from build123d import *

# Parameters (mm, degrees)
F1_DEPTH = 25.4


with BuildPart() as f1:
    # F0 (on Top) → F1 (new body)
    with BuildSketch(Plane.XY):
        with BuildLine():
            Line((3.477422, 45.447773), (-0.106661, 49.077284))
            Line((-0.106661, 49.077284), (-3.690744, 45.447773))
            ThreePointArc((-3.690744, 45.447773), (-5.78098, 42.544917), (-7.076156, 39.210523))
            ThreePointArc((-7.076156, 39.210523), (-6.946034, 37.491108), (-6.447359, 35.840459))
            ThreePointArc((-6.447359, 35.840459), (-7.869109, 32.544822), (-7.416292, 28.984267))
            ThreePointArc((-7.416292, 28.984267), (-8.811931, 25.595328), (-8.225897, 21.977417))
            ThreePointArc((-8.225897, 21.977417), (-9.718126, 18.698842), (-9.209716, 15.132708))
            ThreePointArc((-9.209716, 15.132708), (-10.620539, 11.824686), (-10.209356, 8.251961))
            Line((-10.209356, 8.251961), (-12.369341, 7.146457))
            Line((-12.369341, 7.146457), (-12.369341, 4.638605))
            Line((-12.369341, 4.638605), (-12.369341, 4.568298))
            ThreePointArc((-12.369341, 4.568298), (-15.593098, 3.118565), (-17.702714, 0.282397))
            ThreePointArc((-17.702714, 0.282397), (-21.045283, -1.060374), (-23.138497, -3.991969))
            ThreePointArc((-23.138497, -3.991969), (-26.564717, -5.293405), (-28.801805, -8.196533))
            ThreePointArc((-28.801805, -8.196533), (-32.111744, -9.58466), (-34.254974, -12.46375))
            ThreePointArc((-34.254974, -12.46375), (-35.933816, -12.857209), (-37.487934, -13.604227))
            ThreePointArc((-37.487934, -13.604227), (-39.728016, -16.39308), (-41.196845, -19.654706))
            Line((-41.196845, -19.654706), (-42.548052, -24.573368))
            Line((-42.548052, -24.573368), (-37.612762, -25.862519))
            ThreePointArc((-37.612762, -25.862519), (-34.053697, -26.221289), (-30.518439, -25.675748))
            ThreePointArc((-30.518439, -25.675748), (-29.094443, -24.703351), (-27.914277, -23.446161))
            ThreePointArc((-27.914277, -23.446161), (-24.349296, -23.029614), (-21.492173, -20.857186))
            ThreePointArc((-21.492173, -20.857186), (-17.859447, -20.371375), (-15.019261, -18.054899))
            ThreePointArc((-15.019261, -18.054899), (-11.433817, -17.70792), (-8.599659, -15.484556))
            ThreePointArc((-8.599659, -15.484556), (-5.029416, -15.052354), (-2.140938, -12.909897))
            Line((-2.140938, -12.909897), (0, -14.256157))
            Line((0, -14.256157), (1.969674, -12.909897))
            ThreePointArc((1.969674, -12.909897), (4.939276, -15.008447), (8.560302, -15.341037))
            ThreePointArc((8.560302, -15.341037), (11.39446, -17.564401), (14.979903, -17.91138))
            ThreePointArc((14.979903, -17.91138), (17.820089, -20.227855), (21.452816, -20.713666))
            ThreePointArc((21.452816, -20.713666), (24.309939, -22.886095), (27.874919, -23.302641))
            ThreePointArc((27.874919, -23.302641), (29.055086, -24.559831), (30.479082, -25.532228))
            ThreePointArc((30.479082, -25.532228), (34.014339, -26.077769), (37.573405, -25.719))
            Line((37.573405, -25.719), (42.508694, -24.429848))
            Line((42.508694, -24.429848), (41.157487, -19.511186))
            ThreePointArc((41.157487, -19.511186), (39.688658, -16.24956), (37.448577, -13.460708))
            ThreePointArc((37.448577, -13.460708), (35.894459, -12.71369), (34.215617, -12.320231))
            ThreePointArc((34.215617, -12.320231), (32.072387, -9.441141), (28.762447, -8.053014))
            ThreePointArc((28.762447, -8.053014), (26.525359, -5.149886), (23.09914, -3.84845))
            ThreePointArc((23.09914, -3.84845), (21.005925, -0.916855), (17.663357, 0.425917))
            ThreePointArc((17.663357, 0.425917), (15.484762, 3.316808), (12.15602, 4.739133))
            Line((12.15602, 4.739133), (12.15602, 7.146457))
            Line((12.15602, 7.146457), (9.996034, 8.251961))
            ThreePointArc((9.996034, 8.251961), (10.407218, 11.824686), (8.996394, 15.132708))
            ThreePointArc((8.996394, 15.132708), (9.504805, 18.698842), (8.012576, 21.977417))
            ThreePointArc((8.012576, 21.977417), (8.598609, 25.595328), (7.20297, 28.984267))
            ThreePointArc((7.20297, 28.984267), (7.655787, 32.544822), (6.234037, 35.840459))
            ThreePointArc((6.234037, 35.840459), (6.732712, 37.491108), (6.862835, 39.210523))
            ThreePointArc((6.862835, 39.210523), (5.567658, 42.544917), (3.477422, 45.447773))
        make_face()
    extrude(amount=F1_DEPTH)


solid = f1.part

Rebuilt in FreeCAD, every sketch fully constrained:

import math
import FreeCAD as App
import Part
import Sketcher
from FreeCAD import Vector

doc = App.newDocument("Part")
params = doc.addObject("Spreadsheet::Sheet", "Params")
for row, (alias, value) in enumerate([
    ("pad1_length", "1 in"),
], start=1):
    params.set(f"A{row}", alias)
    params.set(f"B{row}", "=" + value)
    params.setAlias(f"B{row}", alias)

body = doc.addObject("PartDesign::Body", "Body")

sketch1 = doc.addObject("Sketcher::SketchObject", "Sketch")
body.addObject(sketch1)
sketch1.AttachmentSupport = (doc.XY_Plane, [""])
sketch1.MapMode = "FlatFace"
sketch1.addGeometry([
    Part.LineSegment(Vector(3.477422, 45.447773, 0), Vector(-0.106661, 49.077284, 0)),
    Part.LineSegment(Vector(-0.106661, 49.077284, 0), Vector(-3.690744, 45.447773, 0)),
    Part.ArcOfCircle(Part.Circle(Vector(6.650595, 35.797391, 0), Vector(0, 0, 1), 14.144722), math.radians(136.979478), math.radians(166.036676)),
    Part.ArcOfCircle(Part.Circle(Vector(0.850105, 38.945736, 0), Vector(0, 0, 1), 7.930682), math.radians(178.086671), math.radians(203.051122)),
    Part.ArcOfCircle(Part.Circle(Vector(-1.13137, 31.592629, 0), Vector(0, 0, 1), 6.804689), math.radians(141.372811), math.radians(202.539381)),
    Part.ArcOfCircle(Part.Circle(Vector(-2.122763, 24.822429, 0), Vector(0, 0, 1), 6.733672), math.radians(141.825136), math.radians(204.992862)),
    Part.ArcOfCircle(Part.Circle(Vector(-3.363581, 17.785477, 0), Vector(0, 0, 1), 6.41985), math.radians(139.234446), math.radians(204.406864)),
    Part.ArcOfCircle(Part.Circle(Vector(-3.668808, 10.814733, 0), Vector(0, 0, 1), 7.024711), math.radians(142.071066), math.radians(201.396654)),
    Part.LineSegment(Vector(-10.209356, 8.251961, 0), Vector(-12.369341, 7.146457, 0)),
    Part.LineSegment(Vector(-12.369341, 7.146457, 0), Vector(-12.369341, 4.568298, 0)),
    Part.ArcOfCircle(Part.Circle(Vector(-11.192786, -2.35718, 0), Vector(0, 0, 1), 7.024708), math.radians(99.641801), math.radians(157.928949)),
    Part.ArcOfCircle(Part.Circle(Vector(-17.077014, -6.106887, 0), Vector(0, 0, 1), 6.419848), math.radians(95.593116), math.radians(160.765557)),
    Part.ArcOfCircle(Part.Circle(Vector(-22.550781, -10.699948, 0), Vector(0, 0, 1), 6.733676), math.radians(95.007157), math.radians(158.174848)),
    Part.ArcOfCircle(Part.Circle(Vector(-27.91825, -14.943617, 0), Vector(0, 0, 1), 6.80469), math.radians(97.460635), math.radians(158.627189)),
    Part.ArcOfCircle(Part.Circle(Vector(-33.295492, -20.336179, 0), Vector(0, 0, 1), 7.930684), math.radians(96.948864), math.radians(121.913311)),
    Part.ArcOfCircle(Part.Circle(Vector(-27.668696, -23.785378, 0), Vector(0, 0, 1), 14.144726), math.radians(133.96333), math.radians(163.020525)),
    Part.LineSegment(Vector(-41.196845, -19.654706, 0), Vector(-42.548052, -24.573368, 0)),
    Part.LineSegment(Vector(-42.548052, -24.573368, 0), Vector(-37.612762, -25.862519, 0)),
    Part.ArcOfCircle(Part.Circle(Vector(-34.425953, -12.081464, 0), Vector(0, 0, 1), 14.144725), math.radians(-103.020529), math.radians(-73.963336)),
    Part.ArcOfCircle(Part.Circle(Vector(-34.252259, -18.679013, 0), Vector(0, 0, 1), 7.930682), math.radians(-61.913314), math.radians(-36.94886)),
    Part.ArcOfCircle(Part.Circle(Vector(-26.893543, -16.718462, 0), Vector(0, 0, 1), 6.804692), math.radians(-98.627184), math.radians(-37.460637)),
    Part.ArcOfCircle(Part.Circle(Vector(-20.534682, -14.191936, 0), Vector(0, 0, 1), 6.733673), math.radians(-98.174852), math.radians(-35.007139)),
    Part.ArcOfCircle(Part.Circle(Vector(-13.820092, -11.748042, 0), Vector(0, 0, 1), 6.419849), math.radians(-100.765564), math.radians(-35.593118)),
    Part.ArcOfCircle(Part.Circle(Vector(-7.630635, -8.527005, 0), Vector(0, 0, 1), 7.024708), math.radians(-97.928952), math.radians(-38.603338)),
    Part.LineSegment(Vector(-2.140938, -12.909897, 0), Vector(0, -14.256157, 0)),
    Part.LineSegment(Vector(0, -14.256157, 0), Vector(1.969674, -12.909897, 0)),
    Part.ArcOfCircle(Part.Circle(Vector(7.370408, -8.41784, 0), Vector(0, 0, 1), 7.024707), math.radians(-140.24803), math.radians(-80.247822)),
    Part.ArcOfCircle(Part.Circle(Vector(13.780734, -11.604523, 0), Vector(0, 0, 1), 6.419848), math.radians(-144.406884), math.radians(-79.234441)),
    Part.ArcOfCircle(Part.Circle(Vector(20.495324, -14.048413, 0), Vector(0, 0, 1), 6.733675), math.radians(-144.99284), math.radians(-81.825147)),
    Part.ArcOfCircle(Part.Circle(Vector(26.854183, -16.574948, 0), Vector(0, 0, 1), 6.804686), math.radians(-142.539393), math.radians(-81.372793)),
    Part.ArcOfCircle(Part.Circle(Vector(34.212911, -18.535479, 0), Vector(0, 0, 1), 7.930699), math.radians(-143.051105), math.radians(-118.086699)),
    Part.ArcOfCircle(Part.Circle(Vector(34.386599, -11.937929, 0), Vector(0, 0, 1), 14.144739), math.radians(-106.036657), math.radians(-76.979494)),
    Part.LineSegment(Vector(37.573405, -25.719, 0), Vector(42.508694, -24.429848, 0)),
    Part.LineSegment(Vector(42.508694, -24.429848, 0), Vector(41.157487, -19.511186, 0)),
    Part.ArcOfCircle(Part.Circle(Vector(27.629338, -23.641858, 0), Vector(0, 0, 1), 14.144725), math.radians(16.979475), math.radians(46.036665)),
    Part.ArcOfCircle(Part.Circle(Vector(33.256135, -20.19266, 0), Vector(0, 0, 1), 7.930684), math.radians(58.086689), math.radians(83.051136)),
    Part.ArcOfCircle(Part.Circle(Vector(27.878893, -14.800098, 0), Vector(0, 0, 1), 6.80469), math.radians(21.37281), math.radians(82.539377)),
    Part.ArcOfCircle(Part.Circle(Vector(22.511422, -10.556429, 0), Vector(0, 0, 1), 6.733676), math.radians(21.825153), math.radians(84.992833)),
    Part.ArcOfCircle(Part.Circle(Vector(17.037652, -5.963373, 0), Vector(0, 0, 1), 6.419855), math.radians(19.23447), math.radians(84.406843)),
    Part.ArcOfCircle(Part.Circle(Vector(11.153429, -2.213661, 0), Vector(0, 0, 1), 7.024709), math.radians(22.071062), math.radians(81.794525)),
    Part.LineSegment(Vector(12.15602, 4.739133, 0), Vector(12.15602, 7.146457, 0)),
    Part.LineSegment(Vector(12.15602, 7.146457, 0), Vector(9.996034, 8.251961, 0)),
    Part.ArcOfCircle(Part.Circle(Vector(3.455493, 10.814734, 0), Vector(0, 0, 1), 7.024705), math.radians(-21.396684), math.radians(37.928965)),
    Part.ArcOfCircle(Part.Circle(Vector(3.150263, 17.785478, 0), Vector(0, 0, 1), 6.419847), math.radians(-24.406888), math.radians(40.765561)),
    Part.ArcOfCircle(Part.Circle(Vector(1.909438, 24.822428, 0), Vector(0, 0, 1), 6.733675), math.radians(-24.992838), math.radians(38.174857)),
    Part.ArcOfCircle(Part.Circle(Vector(0.918048, 31.592629, 0), Vector(0, 0, 1), 6.804689), math.radians(-22.539381), math.radians(38.627189)),
    Part.ArcOfCircle(Part.Circle(Vector(-1.063447, 38.945742, 0), Vector(0, 0, 1), 7.930703), math.radians(-23.051106), math.radians(1.913279)),
    Part.ArcOfCircle(Part.Circle(Vector(-6.863929, 35.797382, 0), Vector(0, 0, 1), 14.144737), math.radians(13.963346), math.radians(43.020514)),
], False)
sketch1.addConstraint([
    Sketcher.Constraint("Coincident", 0, 2, 1, 1),
    Sketcher.Constraint("Coincident", 1, 2, 2, 1),
    Sketcher.Constraint("Coincident", 2, 2, 3, 1),
    Sketcher.Constraint("Coincident", 3, 2, 4, 1),
    Sketcher.Constraint("Coincident", 4, 2, 5, 1),
    Sketcher.Constraint("Coincident", 5, 2, 6, 1),
    Sketcher.Constraint("Coincident", 6, 2, 7, 1),
    Sketcher.Constraint("Coincident", 7, 2, 8, 1),
    Sketcher.Constraint("Coincident", 8, 2, 9, 1),
    Sketcher.Constraint("Coincident", 9, 2, 10, 1),
    Sketcher.Constraint("Coincident", 10, 2, 11, 1),
    Sketcher.Constraint("Coincident", 11, 2, 12, 1),
    Sketcher.Constraint("Coincident", 12, 2, 13, 1),
    Sketcher.Constraint("Coincident", 13, 2, 14, 1),
    Sketcher.Constraint("Coincident", 14, 2, 15, 1),
    Sketcher.Constraint("Coincident", 15, 2, 16, 1),
    Sketcher.Constraint("Coincident", 16, 2, 17, 1),
    Sketcher.Constraint("Coincident", 17, 2, 18, 1),
    Sketcher.Constraint("Coincident", 18, 2, 19, 1),
    Sketcher.Constraint("Coincident", 19, 2, 20, 1),
    Sketcher.Constraint("Coincident", 20, 2, 21, 1),
    Sketcher.Constraint("Coincident", 21, 2, 22, 1),
    Sketcher.Constraint("Coincident", 22, 2, 23, 1),
    Sketcher.Constraint("Coincident", 23, 2, 24, 1),
    Sketcher.Constraint("Coincident", 24, 2, 25, 1),
    Sketcher.Constraint("Coincident", 25, 2, 26, 1),
    Sketcher.Constraint("Coincident", 26, 2, 27, 1),
    Sketcher.Constraint("Coincident", 27, 2, 28, 1),
    Sketcher.Constraint("Coincident", 28, 2, 29, 1),
    Sketcher.Constraint("Coincident", 29, 2, 30, 1),
    Sketcher.Constraint("Coincident", 30, 2, 31, 1),
    Sketcher.Constraint("Coincident", 31, 2, 32, 1),
    Sketcher.Constraint("Coincident", 32, 2, 33, 1),
    Sketcher.Constraint("Coincident", 33, 2, 34, 1),
    Sketcher.Constraint("Coincident", 34, 2, 35, 1),
    Sketcher.Constraint("Coincident", 35, 2, 36, 1),
    Sketcher.Constraint("Coincident", 36, 2, 37, 1),
    Sketcher.Constraint("Coincident", 37, 2, 38, 1),
    Sketcher.Constraint("Coincident", 38, 2, 39, 1),
    Sketcher.Constraint("Coincident", 39, 2, 40, 1),
    Sketcher.Constraint("Coincident", 40, 2, 41, 1),
    Sketcher.Constraint("Coincident", 41, 2, 42, 1),
    Sketcher.Constraint("Coincident", 42, 2, 43, 1),
    Sketcher.Constraint("Coincident", 43, 2, 44, 1),
    Sketcher.Constraint("Coincident", 44, 2, 45, 1),
    Sketcher.Constraint("Coincident", 45, 2, 46, 1),
    Sketcher.Constraint("Coincident", 46, 2, 47, 1),
    Sketcher.Constraint("Coincident", 47, 2, 0, 1),
    Sketcher.Constraint("Vertical", 9),
    Sketcher.Constraint("Vertical", 40),
    Sketcher.Constraint("PointOnObject", 24, 2, -2),
    Sketcher.Constraint("Radius", 30, 7.930699),
    Sketcher.Constraint("Radius", 4, 6.804689),
    Sketcher.Constraint("Radius", 6, 6.41985),
    Sketcher.Constraint("Radius", 7, 7.024711),
    Sketcher.Constraint("Radius", 10, 7.024708),
    Sketcher.Constraint("Radius", 11, 6.419848),
    Sketcher.Constraint("Radius", 13, 6.80469),
    Sketcher.Constraint("Radius", 19, 7.930682),
    Sketcher.Constraint("Radius", 22, 6.419849),
    Sketcher.Constraint("Radius", 27, 6.419848),
    Sketcher.Constraint("Radius", 31, 14.144739),
    Sketcher.Constraint("Radius", 36, 6.80469),
    Sketcher.Constraint("Radius", 39, 7.024709),
    Sketcher.Constraint("Radius", 45, 6.804689),
    Sketcher.Constraint("Radius", 2, 14.144722),
    Sketcher.Constraint("Radius", 3, 7.930682),
    Sketcher.Constraint("Radius", 5, 6.733672),
    Sketcher.Constraint("Radius", 12, 6.733676),
    Sketcher.Constraint("Radius", 14, 7.930684),
    Sketcher.Constraint("Radius", 15, 14.144726),
    Sketcher.Constraint("Radius", 18, 14.144725),
    Sketcher.Constraint("Radius", 20, 6.804692),
    Sketcher.Constraint("Radius", 21, 6.733673),
    Sketcher.Constraint("Radius", 23, 7.024708),
    Sketcher.Constraint("Radius", 26, 7.024707),
    Sketcher.Constraint("Radius", 28, 6.733675),
    Sketcher.Constraint("Radius", 29, 6.804686),
    Sketcher.Constraint("Radius", 34, 14.144725),
    Sketcher.Constraint("Radius", 35, 7.930684),
    Sketcher.Constraint("Radius", 37, 6.733676),
    Sketcher.Constraint("Radius", 38, 6.419855),
    Sketcher.Constraint("Radius", 42, 7.024705),
    Sketcher.Constraint("Radius", 43, 6.419847),
    Sketcher.Constraint("Radius", 44, 6.733675),
    Sketcher.Constraint("Radius", 46, 7.930703),
    Sketcher.Constraint("Radius", 47, 14.144737),
    Sketcher.Constraint("DistanceY", 9, 2, 9, 1, 2.578159),
    Sketcher.Constraint("DistanceX", -1, 1, 31, 3, 34.386599),
    Sketcher.Constraint("DistanceY", -1, 1, 9, 2, 4.568298),
    Sketcher.Constraint("DistanceY", 21, 2, -1, 1, 18.054899),
    Sketcher.Constraint("DistanceX", -1, 1, 26, 2, 8.560302),
    Sketcher.Constraint("DistanceY", 31, 2, -1, 1, 25.719),
    Sketcher.Constraint("Distance", 16, 5.100882),
    Sketcher.Constraint("Distance", 32, 5.100881),
    Sketcher.Constraint("Distance", 33, 5.100882),
    Sketcher.Constraint("DistanceY", 40, 1, 40, 2, 2.407324),
    Sketcher.Constraint("DistanceY", -1, 1, 2, 3, 35.797391),
    Sketcher.Constraint("DistanceX", 4, 3, -1, 1, 1.13137),
    Sketcher.Constraint("DistanceY", -1, 1, 4, 3, 31.592629),
    Sketcher.Constraint("DistanceY", -1, 1, 5, 3, 24.822429),
    Sketcher.Constraint("DistanceX", 6, 3, -1, 1, 3.363581),
    Sketcher.Constraint("DistanceY", 10, 3, -1, 1, 2.35718),
    Sketcher.Constraint("DistanceX", 12, 3, -1, 1, 22.550781),
    Sketcher.Constraint("DistanceY", 12, 3, -1, 1, 10.699948),
    Sketcher.Constraint("DistanceX", 13, 3, -1, 1, 27.91825),
    Sketcher.Constraint("DistanceY", 14, 3, -1, 1, 20.336179),
    Sketcher.Constraint("DistanceX", 19, 3, -1, 1, 34.252259),
    Sketcher.Constraint("DistanceY", 20, 3, -1, 1, 16.718462),
    Sketcher.Constraint("DistanceX", 21, 3, -1, 1, 20.534682),
    Sketcher.Constraint("DistanceX", 22, 3, -1, 1, 13.820092),
    Sketcher.Constraint("DistanceY", 22, 3, -1, 1, 11.748042),
    Sketcher.Constraint("DistanceX", -1, 1, 26, 3, 7.370408),
    Sketcher.Constraint("DistanceY", 26, 3, -1, 1, 8.41784),
    Sketcher.Constraint("DistanceY", 29, 3, -1, 1, 16.574948),
    Sketcher.Constraint("DistanceX", -1, 1, 30, 3, 34.212911),
    Sketcher.Constraint("DistanceY", 30, 3, -1, 1, 18.535479),
    Sketcher.Constraint("DistanceY", 31, 3, -1, 1, 11.937929),
    Sketcher.Constraint("DistanceX", -1, 1, 34, 3, 27.629338),
    Sketcher.Constraint("DistanceY", 35, 3, -1, 1, 20.19266),
    Sketcher.Constraint("DistanceY", 37, 3, -1, 1, 10.556429),
    Sketcher.Constraint("DistanceX", -1, 1, 39, 3, 11.153429),
    Sketcher.Constraint("DistanceY", 39, 3, -1, 1, 2.213661),
    Sketcher.Constraint("DistanceY", -1, 1, 43, 3, 17.785478),
    Sketcher.Constraint("DistanceX", -1, 1, 44, 3, 1.909438),
    Sketcher.Constraint("DistanceY", -1, 1, 44, 3, 24.822428),
    Sketcher.Constraint("DistanceX", -1, 1, 45, 3, 0.918048),
    Sketcher.Constraint("DistanceY", -1, 1, 45, 3, 31.592629),
    Sketcher.Constraint("DistanceX", 47, 3, -1, 1, 6.863929),
    Sketcher.Constraint("DistanceX", 0, 2, -1, 1, 0.106661),
    Sketcher.Constraint("DistanceX", 3, 2, -1, 1, 6.447359),
    Sketcher.Constraint("DistanceX", 4, 2, -1, 1, 7.416292),
    Sketcher.Constraint("DistanceY", -1, 1, 7, 2, 8.251961),
    Sketcher.Constraint("DistanceX", 8, 2, -1, 1, 12.369341),
    Sketcher.Constraint("DistanceY", 11, 2, -1, 1, 3.991969),
    Sketcher.Constraint("DistanceY", 13, 2, -1, 1, 12.46375),
    Sketcher.Constraint("DistanceX", 16, 2, -1, 1, 42.548052),
    Sketcher.Constraint("DistanceX", 17, 2, -1, 1, 37.612762),
    Sketcher.Constraint("DistanceY", 17, 2, -1, 1, 25.862519),
    Sketcher.Constraint("DistanceX", 18, 2, -1, 1, 30.518439),
    Sketcher.Constraint("DistanceY", 19, 2, -1, 1, 23.446161),
    Sketcher.Constraint("DistanceX", 22, 2, -1, 1, 8.599659),
    Sketcher.Constraint("DistanceX", 23, 2, -1, 1, 2.140938),
    Sketcher.Constraint("DistanceY", 27, 2, -1, 1, 17.91138),
    Sketcher.Constraint("DistanceX", -1, 1, 29, 2, 27.874919),
    Sketcher.Constraint("DistanceY", 32, 2, -1, 1, 24.429848),
    Sketcher.Constraint("DistanceY", 34, 2, -1, 1, 13.460708),
    Sketcher.Constraint("DistanceY", 35, 2, -1, 1, 12.320231),
    Sketcher.Constraint("DistanceX", -1, 1, 37, 2, 23.09914),
    Sketcher.Constraint("DistanceY", 37, 2, -1, 1, 3.84845),
    Sketcher.Constraint("DistanceX", -1, 1, 39, 2, 12.15602),
    Sketcher.Constraint("DistanceY", -1, 1, 41, 2, 8.251961),
    Sketcher.Constraint("DistanceY", -1, 1, 42, 2, 15.132708),
    Sketcher.Constraint("DistanceY", -1, 1, 45, 2, 35.840459),
    Sketcher.Constraint("Distance", 0, 5.100882),
    Sketcher.Constraint("Distance", 1, 5.100882),
    Sketcher.Constraint("Distance", 8, 2.426453),
    Sketcher.Constraint("Distance", 17, 5.100882),
    Sketcher.Constraint("Distance", 24, 2.529038),
    Sketcher.Constraint("Distance", 25, 2.385798),
    Sketcher.Constraint("Distance", 41, 2.426454),
    Sketcher.Constraint("DistanceX", -1, 1, 2, 3, 6.650595),
    Sketcher.Constraint("DistanceX", -1, 1, 3, 3, 0.850105),
    Sketcher.Constraint("DistanceY", -1, 1, 6, 3, 17.785477),
    Sketcher.Constraint("DistanceX", 7, 3, -1, 1, 3.668808),
    Sketcher.Constraint("DistanceX", 11, 3, -1, 1, 17.077014),
    Sketcher.Constraint("DistanceY", 13, 3, -1, 1, 14.943617),
    Sketcher.Constraint("DistanceX", 15, 3, -1, 1, 27.668696),
    Sketcher.Constraint("DistanceY", 15, 3, -1, 1, 23.785378),
    Sketcher.Constraint("DistanceX", 18, 3, -1, 1, 34.425953),
    Sketcher.Constraint("DistanceX", 23, 3, -1, 1, 7.630635),
    Sketcher.Constraint("DistanceX", -1, 1, 27, 3, 13.780734),
    Sketcher.Constraint("DistanceX", -1, 1, 28, 3, 20.495324),
    Sketcher.Constraint("DistanceY", 34, 3, -1, 1, 23.641858),
    Sketcher.Constraint("DistanceX", -1, 1, 36, 3, 27.878893),
    Sketcher.Constraint("DistanceX", -1, 1, 38, 3, 17.037652),
    Sketcher.Constraint("DistanceX", -1, 1, 42, 3, 3.455493),
    Sketcher.Constraint("DistanceX", 46, 3, -1, 1, 1.063447),
    Sketcher.Constraint("DistanceY", -1, 1, 47, 3, 35.797382),
    Sketcher.Constraint("DistanceY", -1, 1, 0, 2, 49.077284),
])
pad1 = doc.addObject("PartDesign::Pad", "Pad")
body.addObject(pad1)
pad1.Profile = sketch1
pad1.setExpression("Length", "Params.pad1_length")

doc.recompute()
